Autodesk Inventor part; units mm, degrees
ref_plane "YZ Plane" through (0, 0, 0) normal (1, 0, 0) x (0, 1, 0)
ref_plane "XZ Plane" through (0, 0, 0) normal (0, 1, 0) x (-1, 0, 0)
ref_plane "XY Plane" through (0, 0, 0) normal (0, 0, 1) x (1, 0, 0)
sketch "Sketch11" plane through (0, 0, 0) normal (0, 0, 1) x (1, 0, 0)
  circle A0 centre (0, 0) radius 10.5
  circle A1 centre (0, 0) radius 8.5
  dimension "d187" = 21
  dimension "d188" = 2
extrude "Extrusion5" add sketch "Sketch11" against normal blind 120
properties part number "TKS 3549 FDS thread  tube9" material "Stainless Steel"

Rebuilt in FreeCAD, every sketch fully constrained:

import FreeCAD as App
import Part
import Sketcher
from FreeCAD import Vector

doc = App.newDocument("Part")
body = doc.addObject("PartDesign::Body", "Body")

# Sketch on XY plane
sketch1 = body.newObject("Sketcher::SketchObject", "Sketch")
sketch1.AttachmentSupport = (doc.getObject("XY_Plane"), [""])
sketch1.MapMode = "FlatFace"
sketch1.addGeometry([
    Part.Circle(Vector(0, 0, 0), Vector(0, 0, 1), 10.5),
    Part.Circle(Vector(0, 0, 0), Vector(0, 0, 1), 8.5),
], False)
sketch1.addConstraint([
    Sketcher.Constraint("Coincident", 0, 3, -1, 1),
    Sketcher.Constraint("Coincident", 1, 3, -1, 1),
    Sketcher.Constraint("Diameter", 0, 21.0),
    Sketcher.Constraint("Diameter", 1, 17.0),
])
pad1 = body.newObject("PartDesign::Pad", "Pad")
pad1.Profile = sketch1
pad1.Length = 120
pad1.Reversed = True

doc.recompute()
